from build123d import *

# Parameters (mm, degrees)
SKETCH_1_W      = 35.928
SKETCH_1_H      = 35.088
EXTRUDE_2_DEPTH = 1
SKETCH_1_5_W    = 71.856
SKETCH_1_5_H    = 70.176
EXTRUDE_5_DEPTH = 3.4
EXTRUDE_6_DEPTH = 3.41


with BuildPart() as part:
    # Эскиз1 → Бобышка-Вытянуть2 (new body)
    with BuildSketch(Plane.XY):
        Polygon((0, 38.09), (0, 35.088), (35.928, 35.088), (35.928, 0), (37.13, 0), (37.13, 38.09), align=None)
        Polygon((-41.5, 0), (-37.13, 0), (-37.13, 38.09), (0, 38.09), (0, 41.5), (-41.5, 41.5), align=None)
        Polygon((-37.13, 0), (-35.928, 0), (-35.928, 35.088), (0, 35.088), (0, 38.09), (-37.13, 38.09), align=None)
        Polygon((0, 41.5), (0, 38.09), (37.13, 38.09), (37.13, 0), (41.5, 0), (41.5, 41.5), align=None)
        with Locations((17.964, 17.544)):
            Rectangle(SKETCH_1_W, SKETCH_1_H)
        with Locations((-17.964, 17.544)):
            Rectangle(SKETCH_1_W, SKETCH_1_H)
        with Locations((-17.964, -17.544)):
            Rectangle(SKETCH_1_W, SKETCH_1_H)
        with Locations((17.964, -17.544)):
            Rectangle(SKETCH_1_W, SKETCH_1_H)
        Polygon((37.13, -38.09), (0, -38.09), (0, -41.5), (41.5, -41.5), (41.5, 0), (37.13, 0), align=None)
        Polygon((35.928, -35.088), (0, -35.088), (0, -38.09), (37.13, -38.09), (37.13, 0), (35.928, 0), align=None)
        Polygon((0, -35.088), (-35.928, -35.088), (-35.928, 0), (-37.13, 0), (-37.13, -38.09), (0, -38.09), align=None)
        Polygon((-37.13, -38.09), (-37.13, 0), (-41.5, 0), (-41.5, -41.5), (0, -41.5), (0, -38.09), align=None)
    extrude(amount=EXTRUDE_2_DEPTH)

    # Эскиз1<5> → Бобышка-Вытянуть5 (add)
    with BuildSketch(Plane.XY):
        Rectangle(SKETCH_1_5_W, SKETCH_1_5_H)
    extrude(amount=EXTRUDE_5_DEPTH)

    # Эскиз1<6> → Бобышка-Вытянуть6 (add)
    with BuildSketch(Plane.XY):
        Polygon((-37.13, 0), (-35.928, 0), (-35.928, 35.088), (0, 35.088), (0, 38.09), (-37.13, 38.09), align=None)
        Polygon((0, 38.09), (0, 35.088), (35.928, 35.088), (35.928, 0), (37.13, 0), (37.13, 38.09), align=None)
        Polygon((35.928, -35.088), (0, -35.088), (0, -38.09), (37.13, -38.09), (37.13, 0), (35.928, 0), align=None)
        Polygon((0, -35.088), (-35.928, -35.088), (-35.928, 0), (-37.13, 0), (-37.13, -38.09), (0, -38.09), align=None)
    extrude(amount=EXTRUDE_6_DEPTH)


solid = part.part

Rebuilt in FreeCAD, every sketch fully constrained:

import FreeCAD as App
import Part
import Sketcher
from FreeCAD import Vector
Q = App.Units.Quantity


def add_polygon(sketch, points):
    """Adds a closed chain of lines whose ends are joined by coincident constraints."""
    first, n = sketch.GeometryCount, len(points)
    for a, b in zip(points, points[1:] + points[:1]):
        sketch.addGeometry(Part.LineSegment(App.Vector(*a, 0), App.Vector(*b, 0)), False)
    for i in range(n):
        sketch.addConstraint(Sketcher.Constraint("Coincident", first + i, 2, first + (i + 1) % n, 1))

doc = App.newDocument("Part")
params = doc.addObject("Spreadsheet::Sheet", "Params")
for row, (alias, value) in enumerate([
    ("sketch1_width", "83 mm"),
    ("pad1_length", "1 mm"),
    ("pad2_length", "3.4 mm"),
    ("sketch3_width", "74.26 mm"),
    ("sketch3_height", "76.18 mm"),
    ("pad3_length", "3.41 mm"),
], start=1):
    params.set(f"A{row}", alias)
    params.set(f"B{row}", "=" + value)
    params.setAlias(f"B{row}", alias)

body = doc.addObject("PartDesign::Body", "Body")

# Sketch on XY plane
sketch1 = body.newObject("Sketcher::SketchObject", "Sketch")
sketch1.AttachmentSupport = (doc.getObject("XY_Plane"), [""])
sketch1.MapMode = "FlatFace"
add_polygon(sketch1, [(42, 42), (-42, 42), (-42, -42), (42, -42)])  # lines 0-3
sketch1.addConstraint([
    Sketcher.Constraint("Horizontal", 0),
    Sketcher.Constraint("Vertical", 1),
    Sketcher.Constraint("Horizontal", 2),
    Sketcher.Constraint("Vertical", 3),
    Sketcher.Constraint("Symmetric", 0, 2, 2, 2, -1, 1),
    Sketcher.Constraint("Equal", 2, 1),
    Sketcher.Constraint("DistanceX", 0, 2, 0, 1, Q("83 mm")),
])
sketch1.setExpression("Constraints[10]", "Params.sketch1_width")
pad1 = body.newObject("PartDesign::Pad", "Pad")
pad1.Profile = sketch1
pad1.setExpression("Length", "Params.pad1_length")

# Sketch on XY plane
sketch2 = body.newObject("Sketcher::SketchObject", "Sketch001")
sketch2.AttachmentSupport = (doc.getObject("XY_Plane"), [""])
sketch2.MapMode = "FlatFace"
add_polygon(sketch2, [(-36, 35), (-36, -35), (36, -35), (36, 35)])  # lines 0-3
sketch2.addConstraint([
    Sketcher.Constraint("Vertical", 0),
    Sketcher.Constraint("Horizontal", 1),
    Sketcher.Constraint("Vertical", 2),
    Sketcher.Constraint("Horizontal", 3),
    Sketcher.Constraint("Symmetric", 0, 2, 2, 2, -1, 1),
    Sketcher.Constraint("DistanceX", 1, 1, 1, 2, Q("71.856 mm")),
    Sketcher.Constraint("DistanceY", 0, 2, 0, 1, Q("70.176 mm")),
])
pad2 = body.newObject("PartDesign::Pad", "Pad001")
pad2.Profile = sketch2
pad2.setExpression("Length", "Params.pad2_length")

# Sketch on XY plane
sketch3 = body.newObject("Sketcher::SketchObject", "Sketch002")
sketch3.AttachmentSupport = (doc.getObject("XY_Plane"), [""])
sketch3.MapMode = "FlatFace"
add_polygon(sketch3, [(37, -38), (37, 38), (-37, 38), (-37, -38)])  # lines 0-3
add_polygon(sketch3, [(-36, 35), (36, 35), (36, -35), (-36, -35)])  # lines 4-7
sketch3.addConstraint([
    Sketcher.Constraint("Vertical", 0),
    Sketcher.Constraint("Horizontal", 1),
    Sketcher.Constraint("Vertical", 2),
    Sketcher.Constraint("Horizontal", 3),
    Sketcher.Constraint("Horizontal", 4),
    Sketcher.Constraint("Vertical", 5),
    Sketcher.Constraint("Horizontal", 6),
    Sketcher.Constraint("Vertical", 7),
    Sketcher.Constraint("Symmetric", 0, 2, 2, 2, -1, 1),
    Sketcher.Constraint("Symmetric", 4, 2, 6, 2, -1, 1),
    Sketcher.Constraint("DistanceX", 1, 2, 1, 1, Q("74.26 mm")),
    Sketcher.Constraint("DistanceY", 0, 1, 0, 2, Q("76.18 mm")),
    Sketcher.Constraint("DistanceX", 4, 1, 4, 2, Q("71.856 mm")),
    Sketcher.Constraint("DistanceY", 5, 2, 5, 1, Q("70.176 mm")),
])
sketch3.setExpression("Constraints[18]", "Params.sketch3_width")
sketch3.setExpression("Constraints[19]", "Params.sketch3_height")
pad3 = body.newObject("PartDesign::Pad", "Pad002")
pad3.Profile = sketch3
pad3.setExpression("Length", "Params.pad3_length")

doc.recompute()
